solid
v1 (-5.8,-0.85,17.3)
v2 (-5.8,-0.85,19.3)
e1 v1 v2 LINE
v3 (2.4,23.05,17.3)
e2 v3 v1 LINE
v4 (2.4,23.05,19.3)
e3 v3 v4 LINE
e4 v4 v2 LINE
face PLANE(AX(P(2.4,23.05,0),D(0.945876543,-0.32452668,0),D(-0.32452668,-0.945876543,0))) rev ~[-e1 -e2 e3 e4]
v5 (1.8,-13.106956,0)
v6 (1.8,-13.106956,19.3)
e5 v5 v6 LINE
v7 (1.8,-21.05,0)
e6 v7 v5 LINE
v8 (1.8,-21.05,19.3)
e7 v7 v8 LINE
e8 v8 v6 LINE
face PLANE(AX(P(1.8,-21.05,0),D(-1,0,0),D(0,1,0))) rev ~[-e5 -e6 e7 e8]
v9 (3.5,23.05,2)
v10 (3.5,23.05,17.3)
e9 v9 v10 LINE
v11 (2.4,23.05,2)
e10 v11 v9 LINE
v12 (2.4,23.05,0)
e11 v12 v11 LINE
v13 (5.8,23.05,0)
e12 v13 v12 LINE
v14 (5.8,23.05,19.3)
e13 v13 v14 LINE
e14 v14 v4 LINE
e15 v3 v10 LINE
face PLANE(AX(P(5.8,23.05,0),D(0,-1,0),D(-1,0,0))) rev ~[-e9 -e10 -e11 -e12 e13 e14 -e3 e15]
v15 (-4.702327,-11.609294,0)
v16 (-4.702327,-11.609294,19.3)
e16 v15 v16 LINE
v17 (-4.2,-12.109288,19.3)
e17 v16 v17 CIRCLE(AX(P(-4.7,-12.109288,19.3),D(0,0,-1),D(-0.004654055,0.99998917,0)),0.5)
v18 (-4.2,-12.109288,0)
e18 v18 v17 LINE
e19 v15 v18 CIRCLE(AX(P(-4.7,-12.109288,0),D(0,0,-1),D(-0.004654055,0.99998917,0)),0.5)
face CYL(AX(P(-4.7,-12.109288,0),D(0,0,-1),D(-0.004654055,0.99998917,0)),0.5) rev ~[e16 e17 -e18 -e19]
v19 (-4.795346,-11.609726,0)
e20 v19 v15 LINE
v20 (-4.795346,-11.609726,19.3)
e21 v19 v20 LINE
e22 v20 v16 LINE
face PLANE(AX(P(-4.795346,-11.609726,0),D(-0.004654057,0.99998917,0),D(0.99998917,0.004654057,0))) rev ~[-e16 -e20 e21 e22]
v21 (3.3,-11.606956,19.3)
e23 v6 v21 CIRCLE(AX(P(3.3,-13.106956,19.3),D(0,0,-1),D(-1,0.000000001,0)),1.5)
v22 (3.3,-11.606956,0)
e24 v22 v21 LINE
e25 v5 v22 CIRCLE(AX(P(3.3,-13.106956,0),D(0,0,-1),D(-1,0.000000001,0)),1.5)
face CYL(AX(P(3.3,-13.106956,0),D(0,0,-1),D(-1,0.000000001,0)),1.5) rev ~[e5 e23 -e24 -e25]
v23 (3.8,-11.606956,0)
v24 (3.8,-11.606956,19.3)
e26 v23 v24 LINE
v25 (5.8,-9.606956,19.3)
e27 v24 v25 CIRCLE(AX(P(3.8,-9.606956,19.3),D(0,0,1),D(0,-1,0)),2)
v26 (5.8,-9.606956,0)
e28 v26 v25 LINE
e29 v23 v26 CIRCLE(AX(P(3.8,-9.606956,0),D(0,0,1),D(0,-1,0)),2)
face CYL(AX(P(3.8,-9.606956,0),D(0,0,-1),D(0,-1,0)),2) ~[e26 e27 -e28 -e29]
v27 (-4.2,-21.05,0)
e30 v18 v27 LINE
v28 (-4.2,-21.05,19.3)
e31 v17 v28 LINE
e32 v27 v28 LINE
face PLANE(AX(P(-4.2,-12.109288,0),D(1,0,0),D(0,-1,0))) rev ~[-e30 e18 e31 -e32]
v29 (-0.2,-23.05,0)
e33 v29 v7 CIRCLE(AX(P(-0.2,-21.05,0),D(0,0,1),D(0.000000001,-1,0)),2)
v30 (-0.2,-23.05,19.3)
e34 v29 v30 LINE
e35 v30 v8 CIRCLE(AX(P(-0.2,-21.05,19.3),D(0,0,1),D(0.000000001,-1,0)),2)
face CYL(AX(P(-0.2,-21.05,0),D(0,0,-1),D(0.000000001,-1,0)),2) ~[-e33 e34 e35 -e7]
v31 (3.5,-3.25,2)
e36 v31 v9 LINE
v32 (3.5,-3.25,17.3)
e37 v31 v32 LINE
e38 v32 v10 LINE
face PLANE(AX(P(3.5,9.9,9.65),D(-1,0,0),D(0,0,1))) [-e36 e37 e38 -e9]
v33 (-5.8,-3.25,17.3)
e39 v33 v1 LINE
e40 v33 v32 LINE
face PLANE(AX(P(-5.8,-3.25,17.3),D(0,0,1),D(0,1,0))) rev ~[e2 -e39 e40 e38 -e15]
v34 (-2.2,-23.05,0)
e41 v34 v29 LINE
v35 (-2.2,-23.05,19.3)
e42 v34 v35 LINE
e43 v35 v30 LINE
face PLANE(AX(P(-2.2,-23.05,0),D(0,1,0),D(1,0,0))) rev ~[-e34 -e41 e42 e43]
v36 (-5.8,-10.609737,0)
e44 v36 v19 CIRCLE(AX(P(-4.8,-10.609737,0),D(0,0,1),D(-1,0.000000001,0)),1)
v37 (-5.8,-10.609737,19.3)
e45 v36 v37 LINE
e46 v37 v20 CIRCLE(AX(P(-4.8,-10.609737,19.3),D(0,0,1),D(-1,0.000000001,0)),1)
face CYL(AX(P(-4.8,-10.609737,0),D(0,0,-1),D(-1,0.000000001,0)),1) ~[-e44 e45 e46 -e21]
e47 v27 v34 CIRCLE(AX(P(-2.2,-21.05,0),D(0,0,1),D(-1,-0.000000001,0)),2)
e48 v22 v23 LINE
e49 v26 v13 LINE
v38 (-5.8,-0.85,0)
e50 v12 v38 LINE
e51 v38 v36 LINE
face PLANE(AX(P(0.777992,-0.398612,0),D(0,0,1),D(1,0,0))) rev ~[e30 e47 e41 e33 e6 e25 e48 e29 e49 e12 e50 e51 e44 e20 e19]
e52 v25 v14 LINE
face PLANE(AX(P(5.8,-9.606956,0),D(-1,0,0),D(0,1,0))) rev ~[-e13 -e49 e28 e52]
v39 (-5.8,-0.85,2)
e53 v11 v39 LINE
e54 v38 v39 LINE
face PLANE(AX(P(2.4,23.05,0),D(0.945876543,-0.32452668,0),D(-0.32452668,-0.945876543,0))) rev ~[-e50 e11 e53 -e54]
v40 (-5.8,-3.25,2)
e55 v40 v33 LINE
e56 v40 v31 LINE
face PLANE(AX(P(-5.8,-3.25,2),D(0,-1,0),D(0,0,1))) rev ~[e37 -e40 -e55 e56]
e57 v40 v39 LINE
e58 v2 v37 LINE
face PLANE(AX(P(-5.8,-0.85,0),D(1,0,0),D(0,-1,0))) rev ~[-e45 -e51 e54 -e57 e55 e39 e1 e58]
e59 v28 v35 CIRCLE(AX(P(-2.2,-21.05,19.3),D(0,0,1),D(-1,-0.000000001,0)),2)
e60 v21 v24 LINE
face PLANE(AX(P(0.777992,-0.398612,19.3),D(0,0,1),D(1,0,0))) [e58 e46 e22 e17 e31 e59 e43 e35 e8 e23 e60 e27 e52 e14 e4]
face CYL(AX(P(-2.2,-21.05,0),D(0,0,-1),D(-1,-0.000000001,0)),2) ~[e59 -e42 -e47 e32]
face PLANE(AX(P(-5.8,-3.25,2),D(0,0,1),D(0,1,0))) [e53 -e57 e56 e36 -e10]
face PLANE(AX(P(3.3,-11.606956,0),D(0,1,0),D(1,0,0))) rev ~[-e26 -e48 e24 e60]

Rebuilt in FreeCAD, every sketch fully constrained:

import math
import FreeCAD as App
import Part
import Sketcher

V = App.Vector
Q = App.Units.Quantity

doc = App.newDocument("Part")
body = doc.addObject("PartDesign::Body", "Body")

sketch1 = body.newObject("Sketcher::SketchObject", "Sketch")
sketch1.AttachmentSupport = (doc.getObject("XY_Plane"), [""])
sketch1.MapMode = "FlatFace"
sketch1.addGeometry([
    Part.LineSegment(V(5.8, 23.05, 0), V(2.4, 23.05, 0)),
    Part.LineSegment(V(2.4, 23.05, 0), V(-5.8, -0.85, 0)),
    Part.LineSegment(V(-5.8, -0.85, 0), V(-5.8, -10.61, 0)),
    Part.ArcOfCircle(Part.Circle(V(-4.8, -10.61, 0), V(0, 0, 1), 1), math.radians(180), math.radians(270)),
    Part.LineSegment(V(-4.8, -11.61, 0), V(-4.7, -11.61, 0)),
    Part.ArcOfCircle(Part.Circle(V(-4.7, -12.11, 0), V(0, 0, 1), 0.5), math.radians(0), math.radians(90)),
    Part.LineSegment(V(-4.2, -12.11, 0), V(-4.2, -21.05, 0)),
    Part.ArcOfCircle(Part.Circle(V(-2.2, -21.05, 0), V(0, 0, 1), 2), math.radians(-180), math.radians(-90)),
    Part.LineSegment(V(-2.2, -23.05, 0), V(-0.2, -23.05, 0)),
    Part.ArcOfCircle(Part.Circle(V(-0.2, -21.05, 0), V(0, 0, 1), 2), math.radians(-90), math.radians(0)),
    Part.LineSegment(V(1.8, -21.05, 0), V(1.8, -13.11, 0)),
    Part.ArcOfCircle(Part.Circle(V(3.3, -13.11, 0), V(0, 0, 1), 1.5), math.radians(90), math.radians(180)),
    Part.LineSegment(V(3.3, -11.61, 0), V(3.8, -11.61, 0)),
    Part.ArcOfCircle(Part.Circle(V(3.8, -9.61, 0), V(0, 0, 1), 2), math.radians(-90), math.radians(0)),
    Part.LineSegment(V(5.8, -9.61, 0), V(5.8, 23.05, 0)),
], False)
sketch1.addConstraint([
    Sketcher.Constraint("Coincident", 0, 2, 1, 1),
    Sketcher.Constraint("Coincident", 1, 2, 2, 1),
    Sketcher.Constraint("Tangent", 2, 2, 3, 1),
    Sketcher.Constraint("Tangent", 3, 2, 4, 1),
    Sketcher.Constraint("Tangent", 4, 2, 5, 2),
    Sketcher.Constraint("Tangent", 5, 1, 6, 1),
    Sketcher.Constraint("Tangent", 6, 2, 7, 1),
    Sketcher.Constraint("Tangent", 7, 2, 8, 1),
    Sketcher.Constraint("Tangent", 8, 2, 9, 1),
    Sketcher.Constraint("Tangent", 9, 2, 10, 1),
    Sketcher.Constraint("Tangent", 10, 2, 11, 2),
    Sketcher.Constraint("Tangent", 11, 1, 12, 1),
    Sketcher.Constraint("Tangent", 12, 2, 13, 1),
    Sketcher.Constraint("Tangent", 13, 2, 14, 1),
    Sketcher.Constraint("Coincident", 14, 2, 0, 1),
    Sketcher.Constraint("Horizontal", 0),
    Sketcher.Constraint("Vertical", 2),
    Sketcher.Constraint("Vertical", 6),
    Sketcher.Constraint("Horizontal", 8),
    Sketcher.Constraint("Vertical", 10),
    Sketcher.Constraint("Horizontal", 12),
    Sketcher.Constraint("Vertical", 14),
    Sketcher.Constraint("Equal", 7, 9),
    Sketcher.Constraint("Equal", 9, 13),
    Sketcher.Constraint("Radius", 3, Q("1 mm")),
    Sketcher.Constraint("Radius", 7, Q("2 mm")),
    Sketcher.Constraint("Radius", 5, Q("0.5 mm")),
    Sketcher.Constraint("Radius", 11, Q("1.5 mm")),
    Sketcher.Constraint("DistanceX", 8, 1, 8, 2, Q("2 mm")),
    Sketcher.Constraint("DistanceX", 0, 2, 0, 1, Q("3.4 mm")),
    Sketcher.Constraint("DistanceX", 12, 1, 12, 2, Q("0.5 mm")),
    Sketcher.Constraint("DistanceX", 3, 3, -1, 1, Q("4.8 mm")),
    Sketcher.Constraint("DistanceX", 5, 3, -1, 1, Q("4.7 mm")),
    Sketcher.Constraint("DistanceY", 9, 3, 0, 2, Q("44.1 mm")),
    Sketcher.Constraint("DistanceY", 7, 3, 1, 2, Q("20.2 mm")),
    Sketcher.Constraint("DistanceY", 7, 3, -1, 1, Q("21.05 mm")),
    Sketcher.Constraint("DistanceY", 6, 2, 6, 1, Q("8.940712 mm")),
    Sketcher.Constraint("Distance", 4, Q("0.09302 mm")),
    Sketcher.Constraint("DistanceY", 10, 1, 10, 2, Q("7.943044 mm")),
])
pad1 = body.newObject("PartDesign::Pad", "Pad")
pad1.Profile = sketch1
pad1.Length = 19.3

sketch2 = body.newObject("Sketcher::SketchObject", "Sketch001")
sketch2.AttachmentSupport = (doc.getObject("YZ_Plane"), [""])
sketch2.MapMode = "FlatFace"
sketch2.AttachmentOffset = App.Placement(V(0, 0, -5.8), App.Rotation())
sketch2.addGeometry([
    Part.LineSegment(V(23, 2, 0), V(-3, 2, 0)),
    Part.LineSegment(V(-3, 2, 0), V(-3, 17, 0)),
    Part.LineSegment(V(-3, 17, 0), V(23, 17, 0)),
    Part.LineSegment(V(23, 17, 0), V(23, 2, 0)),
], False)
sketch2.addConstraint([
    Sketcher.Constraint("Coincident", 0, 2, 1, 1),
    Sketcher.Constraint("Coincident", 1, 2, 2, 1),
    Sketcher.Constraint("Coincident", 2, 2, 3, 1),
    Sketcher.Constraint("Coincident", 3, 2, 0, 1),
    Sketcher.Constraint("Horizontal", 0),
    Sketcher.Constraint("Vertical", 1),
    Sketcher.Constraint("Horizontal", 2),
    Sketcher.Constraint("Vertical", 3),
    Sketcher.Constraint("DistanceX", 0, 2, 0, 1, Q("26.3 mm")),
    Sketcher.Constraint("DistanceY", 1, 1, 1, 2, Q("15.3 mm")),
    Sketcher.Constraint("DistanceY", -1, 1, 0, 2, Q("2 mm")),
    Sketcher.Constraint("DistanceX", 0, 2, -1, 1, Q("3.25 mm")),
])
pocket1 = body.newObject("PartDesign::Pocket", "Pocket")
pocket1.Profile = sketch2
pocket1.Length = 9.3
pocket1.Reversed = True

doc.recompute()
